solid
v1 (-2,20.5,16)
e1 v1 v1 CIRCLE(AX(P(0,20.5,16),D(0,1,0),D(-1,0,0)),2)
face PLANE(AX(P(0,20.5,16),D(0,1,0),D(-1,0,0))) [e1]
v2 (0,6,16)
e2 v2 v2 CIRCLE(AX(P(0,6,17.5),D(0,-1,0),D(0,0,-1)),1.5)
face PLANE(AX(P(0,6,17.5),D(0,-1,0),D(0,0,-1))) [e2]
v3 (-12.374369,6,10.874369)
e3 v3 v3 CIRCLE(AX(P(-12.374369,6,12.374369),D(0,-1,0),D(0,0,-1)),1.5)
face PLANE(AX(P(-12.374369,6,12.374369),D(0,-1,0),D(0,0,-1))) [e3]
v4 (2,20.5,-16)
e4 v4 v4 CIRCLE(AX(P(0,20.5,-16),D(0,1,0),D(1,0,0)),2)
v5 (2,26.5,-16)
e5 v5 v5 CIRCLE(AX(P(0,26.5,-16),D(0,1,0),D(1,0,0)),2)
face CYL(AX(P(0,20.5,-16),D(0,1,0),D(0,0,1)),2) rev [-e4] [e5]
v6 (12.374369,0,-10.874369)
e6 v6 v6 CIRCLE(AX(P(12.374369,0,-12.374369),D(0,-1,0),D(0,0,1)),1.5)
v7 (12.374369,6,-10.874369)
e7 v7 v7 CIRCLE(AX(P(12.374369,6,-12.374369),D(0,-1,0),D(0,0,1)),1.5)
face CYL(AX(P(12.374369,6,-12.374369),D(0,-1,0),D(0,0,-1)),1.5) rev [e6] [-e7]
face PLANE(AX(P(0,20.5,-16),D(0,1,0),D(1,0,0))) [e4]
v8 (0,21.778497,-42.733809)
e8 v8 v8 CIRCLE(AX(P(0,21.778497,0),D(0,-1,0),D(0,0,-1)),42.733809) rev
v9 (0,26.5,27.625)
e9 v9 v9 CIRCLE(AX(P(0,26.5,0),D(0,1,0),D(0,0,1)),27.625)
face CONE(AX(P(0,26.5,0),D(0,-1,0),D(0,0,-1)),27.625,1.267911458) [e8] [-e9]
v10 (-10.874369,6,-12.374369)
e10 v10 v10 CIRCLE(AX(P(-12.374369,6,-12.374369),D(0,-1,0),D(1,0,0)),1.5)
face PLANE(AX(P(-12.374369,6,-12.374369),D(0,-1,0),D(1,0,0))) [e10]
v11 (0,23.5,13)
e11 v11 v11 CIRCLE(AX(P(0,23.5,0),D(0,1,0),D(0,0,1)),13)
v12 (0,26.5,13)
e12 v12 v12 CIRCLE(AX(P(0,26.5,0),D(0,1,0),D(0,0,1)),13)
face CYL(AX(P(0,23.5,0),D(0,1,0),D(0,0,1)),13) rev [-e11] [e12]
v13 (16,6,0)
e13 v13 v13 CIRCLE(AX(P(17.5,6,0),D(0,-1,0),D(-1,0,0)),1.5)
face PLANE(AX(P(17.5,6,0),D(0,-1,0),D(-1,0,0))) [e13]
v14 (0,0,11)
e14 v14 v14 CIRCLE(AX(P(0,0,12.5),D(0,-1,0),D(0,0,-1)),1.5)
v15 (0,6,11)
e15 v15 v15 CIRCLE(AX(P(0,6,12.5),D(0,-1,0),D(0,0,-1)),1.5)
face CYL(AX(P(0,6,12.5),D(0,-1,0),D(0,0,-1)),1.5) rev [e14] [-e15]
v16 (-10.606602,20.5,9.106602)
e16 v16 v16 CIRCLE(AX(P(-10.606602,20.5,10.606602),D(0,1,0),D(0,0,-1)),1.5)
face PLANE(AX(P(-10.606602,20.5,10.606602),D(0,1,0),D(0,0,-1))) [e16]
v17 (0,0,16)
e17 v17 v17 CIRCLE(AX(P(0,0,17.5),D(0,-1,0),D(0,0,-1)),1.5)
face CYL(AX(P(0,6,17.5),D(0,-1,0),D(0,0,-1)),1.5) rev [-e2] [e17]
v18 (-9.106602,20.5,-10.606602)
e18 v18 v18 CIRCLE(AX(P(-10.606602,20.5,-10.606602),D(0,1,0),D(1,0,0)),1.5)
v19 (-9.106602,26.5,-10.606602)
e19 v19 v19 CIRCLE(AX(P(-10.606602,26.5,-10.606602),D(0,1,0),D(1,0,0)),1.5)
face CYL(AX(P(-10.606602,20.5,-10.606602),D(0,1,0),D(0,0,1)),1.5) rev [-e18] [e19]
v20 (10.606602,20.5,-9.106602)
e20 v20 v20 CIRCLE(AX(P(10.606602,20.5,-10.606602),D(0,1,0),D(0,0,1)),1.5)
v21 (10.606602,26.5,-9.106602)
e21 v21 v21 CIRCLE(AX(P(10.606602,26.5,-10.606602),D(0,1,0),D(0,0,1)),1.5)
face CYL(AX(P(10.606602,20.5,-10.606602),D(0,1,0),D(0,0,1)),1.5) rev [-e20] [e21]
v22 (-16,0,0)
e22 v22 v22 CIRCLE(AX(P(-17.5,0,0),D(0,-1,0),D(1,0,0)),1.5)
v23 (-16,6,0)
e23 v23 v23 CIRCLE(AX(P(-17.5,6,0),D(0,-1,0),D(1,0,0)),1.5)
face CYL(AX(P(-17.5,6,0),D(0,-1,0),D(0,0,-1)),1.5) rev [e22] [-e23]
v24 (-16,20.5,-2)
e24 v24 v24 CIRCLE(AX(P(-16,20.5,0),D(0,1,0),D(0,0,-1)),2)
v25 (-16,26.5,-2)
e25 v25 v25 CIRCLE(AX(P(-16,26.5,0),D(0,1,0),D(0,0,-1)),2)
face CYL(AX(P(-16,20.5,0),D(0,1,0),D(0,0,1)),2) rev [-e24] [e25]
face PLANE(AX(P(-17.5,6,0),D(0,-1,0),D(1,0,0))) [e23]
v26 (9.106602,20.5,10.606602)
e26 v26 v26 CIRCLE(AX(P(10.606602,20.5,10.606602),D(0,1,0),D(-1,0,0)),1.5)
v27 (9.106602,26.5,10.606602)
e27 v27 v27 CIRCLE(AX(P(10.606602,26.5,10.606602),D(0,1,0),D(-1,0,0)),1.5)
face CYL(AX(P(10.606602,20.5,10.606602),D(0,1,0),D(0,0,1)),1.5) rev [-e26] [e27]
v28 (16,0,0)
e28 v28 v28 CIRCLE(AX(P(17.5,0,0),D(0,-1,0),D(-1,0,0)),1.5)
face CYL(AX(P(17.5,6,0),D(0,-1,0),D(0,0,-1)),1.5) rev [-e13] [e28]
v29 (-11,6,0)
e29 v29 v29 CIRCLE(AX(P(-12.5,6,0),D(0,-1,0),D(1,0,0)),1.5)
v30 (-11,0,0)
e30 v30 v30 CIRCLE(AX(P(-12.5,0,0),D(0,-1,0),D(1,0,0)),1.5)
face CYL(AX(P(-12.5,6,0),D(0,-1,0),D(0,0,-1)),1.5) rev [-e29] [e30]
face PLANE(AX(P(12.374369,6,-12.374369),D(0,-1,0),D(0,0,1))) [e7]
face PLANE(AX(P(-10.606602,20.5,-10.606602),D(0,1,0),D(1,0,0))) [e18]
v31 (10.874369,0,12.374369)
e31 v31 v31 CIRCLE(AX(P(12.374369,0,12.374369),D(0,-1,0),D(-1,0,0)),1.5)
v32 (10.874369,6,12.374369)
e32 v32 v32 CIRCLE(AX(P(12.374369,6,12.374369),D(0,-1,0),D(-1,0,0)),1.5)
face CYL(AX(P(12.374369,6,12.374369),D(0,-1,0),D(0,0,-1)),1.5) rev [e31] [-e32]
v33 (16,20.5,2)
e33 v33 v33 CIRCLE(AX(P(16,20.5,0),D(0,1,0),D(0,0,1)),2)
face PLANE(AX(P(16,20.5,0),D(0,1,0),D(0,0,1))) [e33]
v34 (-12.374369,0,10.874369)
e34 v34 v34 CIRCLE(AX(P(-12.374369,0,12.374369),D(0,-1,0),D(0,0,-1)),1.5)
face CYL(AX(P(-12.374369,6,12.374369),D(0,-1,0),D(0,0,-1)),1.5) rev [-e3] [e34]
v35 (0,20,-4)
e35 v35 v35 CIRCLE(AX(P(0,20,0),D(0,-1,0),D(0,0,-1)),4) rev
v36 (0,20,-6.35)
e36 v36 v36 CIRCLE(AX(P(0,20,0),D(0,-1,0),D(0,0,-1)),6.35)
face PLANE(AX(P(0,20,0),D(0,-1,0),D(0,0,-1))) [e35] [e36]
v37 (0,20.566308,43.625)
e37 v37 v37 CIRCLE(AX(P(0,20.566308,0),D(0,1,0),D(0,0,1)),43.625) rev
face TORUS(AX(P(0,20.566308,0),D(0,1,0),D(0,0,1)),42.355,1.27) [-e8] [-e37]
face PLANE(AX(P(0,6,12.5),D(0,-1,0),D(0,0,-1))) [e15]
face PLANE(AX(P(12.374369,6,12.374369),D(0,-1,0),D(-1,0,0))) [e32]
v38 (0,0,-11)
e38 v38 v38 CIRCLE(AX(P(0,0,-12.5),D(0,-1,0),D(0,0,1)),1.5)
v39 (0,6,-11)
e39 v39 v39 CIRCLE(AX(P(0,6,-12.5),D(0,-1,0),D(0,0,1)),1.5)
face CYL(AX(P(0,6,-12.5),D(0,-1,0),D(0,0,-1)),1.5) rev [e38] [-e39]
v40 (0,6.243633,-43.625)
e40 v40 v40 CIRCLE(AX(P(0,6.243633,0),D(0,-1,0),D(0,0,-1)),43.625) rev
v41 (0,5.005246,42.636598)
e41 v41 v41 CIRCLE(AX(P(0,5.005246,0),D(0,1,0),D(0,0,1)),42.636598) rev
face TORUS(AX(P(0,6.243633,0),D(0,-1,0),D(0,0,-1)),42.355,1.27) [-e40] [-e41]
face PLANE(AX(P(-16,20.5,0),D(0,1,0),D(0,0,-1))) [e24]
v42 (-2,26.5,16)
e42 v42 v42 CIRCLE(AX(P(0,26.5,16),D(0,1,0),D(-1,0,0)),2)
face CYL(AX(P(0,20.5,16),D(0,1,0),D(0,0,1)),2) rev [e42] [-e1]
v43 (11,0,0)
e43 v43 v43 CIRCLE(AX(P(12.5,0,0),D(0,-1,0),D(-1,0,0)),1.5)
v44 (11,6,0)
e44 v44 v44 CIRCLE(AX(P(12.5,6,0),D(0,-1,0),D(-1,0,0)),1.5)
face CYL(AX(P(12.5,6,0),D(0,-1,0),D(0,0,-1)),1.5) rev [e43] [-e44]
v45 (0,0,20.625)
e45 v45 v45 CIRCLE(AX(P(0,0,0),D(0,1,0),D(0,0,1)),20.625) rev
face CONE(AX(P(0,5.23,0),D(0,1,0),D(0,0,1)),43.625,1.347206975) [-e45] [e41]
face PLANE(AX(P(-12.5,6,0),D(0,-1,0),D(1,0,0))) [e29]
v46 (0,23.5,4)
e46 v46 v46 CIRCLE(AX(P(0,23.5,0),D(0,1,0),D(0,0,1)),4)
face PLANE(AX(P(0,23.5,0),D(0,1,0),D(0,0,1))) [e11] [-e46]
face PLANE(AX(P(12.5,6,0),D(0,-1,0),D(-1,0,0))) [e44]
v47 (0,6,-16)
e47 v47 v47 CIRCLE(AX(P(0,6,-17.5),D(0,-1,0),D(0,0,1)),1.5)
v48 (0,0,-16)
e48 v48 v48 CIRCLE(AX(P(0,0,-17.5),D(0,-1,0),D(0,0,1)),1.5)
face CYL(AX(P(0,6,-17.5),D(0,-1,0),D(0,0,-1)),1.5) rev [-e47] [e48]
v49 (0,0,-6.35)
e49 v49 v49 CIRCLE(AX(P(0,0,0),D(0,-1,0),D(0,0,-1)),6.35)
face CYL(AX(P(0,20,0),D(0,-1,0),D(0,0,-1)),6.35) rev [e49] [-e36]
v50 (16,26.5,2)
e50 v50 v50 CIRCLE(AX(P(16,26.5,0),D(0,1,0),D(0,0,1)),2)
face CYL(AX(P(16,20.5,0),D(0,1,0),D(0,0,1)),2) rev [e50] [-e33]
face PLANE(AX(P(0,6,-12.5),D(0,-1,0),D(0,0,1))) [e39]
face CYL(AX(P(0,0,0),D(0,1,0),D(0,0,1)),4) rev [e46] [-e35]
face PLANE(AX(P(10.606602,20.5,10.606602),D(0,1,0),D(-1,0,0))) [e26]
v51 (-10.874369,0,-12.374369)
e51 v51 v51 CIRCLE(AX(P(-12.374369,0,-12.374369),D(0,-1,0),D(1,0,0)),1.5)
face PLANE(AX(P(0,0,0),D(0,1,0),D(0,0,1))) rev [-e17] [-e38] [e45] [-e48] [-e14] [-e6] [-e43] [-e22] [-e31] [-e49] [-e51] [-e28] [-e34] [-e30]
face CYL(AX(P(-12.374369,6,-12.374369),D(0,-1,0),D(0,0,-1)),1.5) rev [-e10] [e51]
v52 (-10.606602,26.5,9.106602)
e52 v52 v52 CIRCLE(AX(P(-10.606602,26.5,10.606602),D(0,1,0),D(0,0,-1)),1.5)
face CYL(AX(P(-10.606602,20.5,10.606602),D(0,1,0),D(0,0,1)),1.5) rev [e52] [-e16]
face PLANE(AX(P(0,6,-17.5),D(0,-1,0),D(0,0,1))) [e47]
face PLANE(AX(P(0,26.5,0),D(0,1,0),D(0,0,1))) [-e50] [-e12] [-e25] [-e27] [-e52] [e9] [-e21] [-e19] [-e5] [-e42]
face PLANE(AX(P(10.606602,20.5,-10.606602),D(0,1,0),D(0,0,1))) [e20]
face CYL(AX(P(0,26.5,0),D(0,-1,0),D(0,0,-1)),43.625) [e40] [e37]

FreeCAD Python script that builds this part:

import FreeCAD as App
import Part
import Sketcher
from FreeCAD import Vector


def edges_at(feature, points):
    """Names of the edges that pass closest to the given points."""
    edges = feature.Shape.Edges
    near = lambda p: min(range(len(edges)), key=lambda i: edges[i].distToShape(Part.Vertex(*p))[0])
    return sorted({f"Edge{near(p) + 1}" for p in points})

doc = App.newDocument("Part")
body = doc.addObject("PartDesign::Body", "Body")

sketch1 = doc.addObject("Sketcher::SketchObject", "Sketch")
body.addObject(sketch1)
sketch1.AttachmentSupport = (doc.XZ_Plane, [""])
sketch1.MapMode = "FlatFace"
sketch1.addGeometry(Part.Circle(Vector(0, 0, 0), Vector(0, 0, 1), 44), False)
sketch1.addConstraint([
    Sketcher.Constraint("Coincident", 0, 3, -1, 1),
    Sketcher.Constraint("Diameter", 0, 87.25),
])
pad1 = doc.addObject("PartDesign::Pad", "Pad")
body.addObject(pad1)
pad1.Profile = sketch1
pad1.Length = 26.5
pad1.Reversed = True
doc.recompute()

chamfer = doc.addObject("PartDesign::Chamfer", "Chamfer")
body.addObject(chamfer)
chamfer.Base = (pad1, edges_at(pad1, [(-43.625, 26.5, 0)]))
chamfer.ChamferType = "Two distances"
chamfer.Size = 5
chamfer.Size2 = 16

sketch2 = doc.addObject("Sketcher::SketchObject", "Sketch001")
body.addObject(sketch2)
sketch2.AttachmentSupport = (doc.XZ_Plane, [""])
sketch2.MapMode = "FlatFace"
sketch2.AttachmentOffset = App.Placement(Vector(0, 0, -26.5), App.Rotation())
sketch2.addGeometry([
    Part.Circle(Vector(16, 0, 0), Vector(0, 0, 1), 2),
    Part.Circle(Vector(10.6, -10.6, 0), Vector(0, 0, 1), 1.5),
], False)
sketch2.addConstraint([
    Sketcher.Constraint("PointOnObject", 0, 3, -1),
    Sketcher.Constraint("Diameter", 0, 4.0),
    Sketcher.Constraint("Diameter", 1, 3.0),
    Sketcher.Constraint("DistanceX", -1, 1, 0, 3, 16.0),
    Sketcher.Constraint("DistanceX", -1, 1, 1, 3, 10.606602),
    Sketcher.Constraint("DistanceY", 1, 3, -1, 1, 10.606602),
])
pocket1 = doc.addObject("PartDesign::Pocket", "Pocket")
body.addObject(pocket1)
pocket1.Profile = sketch2
pocket1.Length = 6
pocket1.Reversed = True

sketch3 = doc.addObject("Sketcher::SketchObject", "Sketch002")
body.addObject(sketch3)
sketch3.AttachmentSupport = (doc.XZ_Plane, [""])
sketch3.MapMode = "FlatFace"
sketch3.AttachmentOffset = App.Placement(Vector(0, 0, -26.5), App.Rotation())
sketch3.addGeometry(Part.Circle(Vector(0, 0, 0), Vector(0, 0, 1), 13), False)
sketch3.addConstraint([
    Sketcher.Constraint("Coincident", 0, 3, -1, 1),
    Sketcher.Constraint("Diameter", 0, 26.0),
])
pocket2 = doc.addObject("PartDesign::Pocket", "Pocket001")
body.addObject(pocket2)
pocket2.Profile = sketch3
pocket2.Length = 3
pocket2.Reversed = True
doc.recompute()

chamfer2 = doc.addObject("PartDesign::Chamfer", "Chamfer001")
body.addObject(chamfer2)
chamfer2.Base = (pocket2, edges_at(pocket2, [(-43.625, 0, 0)]))
chamfer2.ChamferType = "Two distances"
chamfer2.Size = 23
chamfer2.Size2 = 5.23
chamfer2.FlipDirection = True
doc.recompute()

fillet = doc.addObject("PartDesign::Fillet", "Fillet")
body.addObject(fillet)
fillet.Base = (chamfer2, edges_at(chamfer2, [(-43.625, 5.23, 0), (-43.625, 21.5, 0)]))
fillet.Radius = 1.27

sketch4 = doc.addObject("Sketcher::SketchObject", "Sketch003")
body.addObject(sketch4)
sketch4.AttachmentSupport = (doc.XZ_Plane, [""])
sketch4.MapMode = "FlatFace"
sketch4.AttachmentOffset = App.Placement(Vector(0, 0, -26.5), App.Rotation())
sketch4.addGeometry(Part.Circle(Vector(0, 0, 0), Vector(0, 0, 1), 4), False)
sketch4.addConstraint([
    Sketcher.Constraint("Coincident", 0, 3, -1, 1),
    Sketcher.Constraint("Diameter", 0, 8.0),
])
pocket3 = doc.addObject("PartDesign::Pocket", "Pocket002")
body.addObject(pocket3)
pocket3.Profile = sketch4
pocket3.Type = "ThroughAll"
pocket3.Reversed = True

sketch5 = doc.addObject("Sketcher::SketchObject", "Sketch004")
body.addObject(sketch5)
sketch5.AttachmentSupport = (doc.XZ_Plane, [""])
sketch5.MapMode = "FlatFace"
sketch5.addGeometry(Part.Circle(Vector(0, 0, 0), Vector(0, 0, 1), 6), False)
sketch5.addConstraint([
    Sketcher.Constraint("Coincident", 0, 3, -1, 1),
    Sketcher.Constraint("Diameter", 0, 12.7),
])
pocket4 = doc.addObject("PartDesign::Pocket", "Pocket003")
body.addObject(pocket4)
pocket4.Profile = sketch5
pocket4.Length = 20

sketch6 = doc.addObject("Sketcher::SketchObject", "Sketch005")
body.addObject(sketch6)
sketch6.AttachmentSupport = (doc.XZ_Plane, [""])
sketch6.MapMode = "FlatFace"
sketch6.addGeometry([
    Part.Circle(Vector(0, 17.5, 0), Vector(0, 0, 1), 1.5),
    Part.Circle(Vector(0, 12.5, 0), Vector(0, 0, 1), 1.5),
    Part.Circle(Vector(-12.4, 12.4, 0), Vector(0, 0, 1), 1.5),
], False)
sketch6.addConstraint([
    Sketcher.Constraint("Equal", 0, 1),
    Sketcher.Constraint("Equal", 1, 2),
    Sketcher.Constraint("PointOnObject", 0, 3, -2),
    Sketcher.Constraint("PointOnObject", 1, 3, -2),
    Sketcher.Constraint("Diameter", 0, 3.0),
    Sketcher.Constraint("DistanceY", 1, 3, 0, 3, 5.0),
    Sketcher.Constraint("DistanceY", -1, 1, 0, 3, 17.5),
    Sketcher.Constraint("DistanceX", 2, 3, -1, 1, 12.374369),
    Sketcher.Constraint("DistanceY", -1, 1, 2, 3, 12.374369),
])
pocket5 = doc.addObject("PartDesign::Pocket", "Pocket004")
body.addObject(pocket5)
pocket5.Profile = sketch6
pocket5.Length = 6
doc.recompute()

polarpattern = doc.addObject("PartDesign::PolarPattern", "PolarPattern")
body.addObject(polarpattern)
polarpattern.Originals = [pocket1, pocket5]
polarpattern.Axis = (doc.Y_Axis, [""])
polarpattern.Angle = 360
polarpattern.Occurrences = 4
body.Tip = polarpattern

doc.recompute()
